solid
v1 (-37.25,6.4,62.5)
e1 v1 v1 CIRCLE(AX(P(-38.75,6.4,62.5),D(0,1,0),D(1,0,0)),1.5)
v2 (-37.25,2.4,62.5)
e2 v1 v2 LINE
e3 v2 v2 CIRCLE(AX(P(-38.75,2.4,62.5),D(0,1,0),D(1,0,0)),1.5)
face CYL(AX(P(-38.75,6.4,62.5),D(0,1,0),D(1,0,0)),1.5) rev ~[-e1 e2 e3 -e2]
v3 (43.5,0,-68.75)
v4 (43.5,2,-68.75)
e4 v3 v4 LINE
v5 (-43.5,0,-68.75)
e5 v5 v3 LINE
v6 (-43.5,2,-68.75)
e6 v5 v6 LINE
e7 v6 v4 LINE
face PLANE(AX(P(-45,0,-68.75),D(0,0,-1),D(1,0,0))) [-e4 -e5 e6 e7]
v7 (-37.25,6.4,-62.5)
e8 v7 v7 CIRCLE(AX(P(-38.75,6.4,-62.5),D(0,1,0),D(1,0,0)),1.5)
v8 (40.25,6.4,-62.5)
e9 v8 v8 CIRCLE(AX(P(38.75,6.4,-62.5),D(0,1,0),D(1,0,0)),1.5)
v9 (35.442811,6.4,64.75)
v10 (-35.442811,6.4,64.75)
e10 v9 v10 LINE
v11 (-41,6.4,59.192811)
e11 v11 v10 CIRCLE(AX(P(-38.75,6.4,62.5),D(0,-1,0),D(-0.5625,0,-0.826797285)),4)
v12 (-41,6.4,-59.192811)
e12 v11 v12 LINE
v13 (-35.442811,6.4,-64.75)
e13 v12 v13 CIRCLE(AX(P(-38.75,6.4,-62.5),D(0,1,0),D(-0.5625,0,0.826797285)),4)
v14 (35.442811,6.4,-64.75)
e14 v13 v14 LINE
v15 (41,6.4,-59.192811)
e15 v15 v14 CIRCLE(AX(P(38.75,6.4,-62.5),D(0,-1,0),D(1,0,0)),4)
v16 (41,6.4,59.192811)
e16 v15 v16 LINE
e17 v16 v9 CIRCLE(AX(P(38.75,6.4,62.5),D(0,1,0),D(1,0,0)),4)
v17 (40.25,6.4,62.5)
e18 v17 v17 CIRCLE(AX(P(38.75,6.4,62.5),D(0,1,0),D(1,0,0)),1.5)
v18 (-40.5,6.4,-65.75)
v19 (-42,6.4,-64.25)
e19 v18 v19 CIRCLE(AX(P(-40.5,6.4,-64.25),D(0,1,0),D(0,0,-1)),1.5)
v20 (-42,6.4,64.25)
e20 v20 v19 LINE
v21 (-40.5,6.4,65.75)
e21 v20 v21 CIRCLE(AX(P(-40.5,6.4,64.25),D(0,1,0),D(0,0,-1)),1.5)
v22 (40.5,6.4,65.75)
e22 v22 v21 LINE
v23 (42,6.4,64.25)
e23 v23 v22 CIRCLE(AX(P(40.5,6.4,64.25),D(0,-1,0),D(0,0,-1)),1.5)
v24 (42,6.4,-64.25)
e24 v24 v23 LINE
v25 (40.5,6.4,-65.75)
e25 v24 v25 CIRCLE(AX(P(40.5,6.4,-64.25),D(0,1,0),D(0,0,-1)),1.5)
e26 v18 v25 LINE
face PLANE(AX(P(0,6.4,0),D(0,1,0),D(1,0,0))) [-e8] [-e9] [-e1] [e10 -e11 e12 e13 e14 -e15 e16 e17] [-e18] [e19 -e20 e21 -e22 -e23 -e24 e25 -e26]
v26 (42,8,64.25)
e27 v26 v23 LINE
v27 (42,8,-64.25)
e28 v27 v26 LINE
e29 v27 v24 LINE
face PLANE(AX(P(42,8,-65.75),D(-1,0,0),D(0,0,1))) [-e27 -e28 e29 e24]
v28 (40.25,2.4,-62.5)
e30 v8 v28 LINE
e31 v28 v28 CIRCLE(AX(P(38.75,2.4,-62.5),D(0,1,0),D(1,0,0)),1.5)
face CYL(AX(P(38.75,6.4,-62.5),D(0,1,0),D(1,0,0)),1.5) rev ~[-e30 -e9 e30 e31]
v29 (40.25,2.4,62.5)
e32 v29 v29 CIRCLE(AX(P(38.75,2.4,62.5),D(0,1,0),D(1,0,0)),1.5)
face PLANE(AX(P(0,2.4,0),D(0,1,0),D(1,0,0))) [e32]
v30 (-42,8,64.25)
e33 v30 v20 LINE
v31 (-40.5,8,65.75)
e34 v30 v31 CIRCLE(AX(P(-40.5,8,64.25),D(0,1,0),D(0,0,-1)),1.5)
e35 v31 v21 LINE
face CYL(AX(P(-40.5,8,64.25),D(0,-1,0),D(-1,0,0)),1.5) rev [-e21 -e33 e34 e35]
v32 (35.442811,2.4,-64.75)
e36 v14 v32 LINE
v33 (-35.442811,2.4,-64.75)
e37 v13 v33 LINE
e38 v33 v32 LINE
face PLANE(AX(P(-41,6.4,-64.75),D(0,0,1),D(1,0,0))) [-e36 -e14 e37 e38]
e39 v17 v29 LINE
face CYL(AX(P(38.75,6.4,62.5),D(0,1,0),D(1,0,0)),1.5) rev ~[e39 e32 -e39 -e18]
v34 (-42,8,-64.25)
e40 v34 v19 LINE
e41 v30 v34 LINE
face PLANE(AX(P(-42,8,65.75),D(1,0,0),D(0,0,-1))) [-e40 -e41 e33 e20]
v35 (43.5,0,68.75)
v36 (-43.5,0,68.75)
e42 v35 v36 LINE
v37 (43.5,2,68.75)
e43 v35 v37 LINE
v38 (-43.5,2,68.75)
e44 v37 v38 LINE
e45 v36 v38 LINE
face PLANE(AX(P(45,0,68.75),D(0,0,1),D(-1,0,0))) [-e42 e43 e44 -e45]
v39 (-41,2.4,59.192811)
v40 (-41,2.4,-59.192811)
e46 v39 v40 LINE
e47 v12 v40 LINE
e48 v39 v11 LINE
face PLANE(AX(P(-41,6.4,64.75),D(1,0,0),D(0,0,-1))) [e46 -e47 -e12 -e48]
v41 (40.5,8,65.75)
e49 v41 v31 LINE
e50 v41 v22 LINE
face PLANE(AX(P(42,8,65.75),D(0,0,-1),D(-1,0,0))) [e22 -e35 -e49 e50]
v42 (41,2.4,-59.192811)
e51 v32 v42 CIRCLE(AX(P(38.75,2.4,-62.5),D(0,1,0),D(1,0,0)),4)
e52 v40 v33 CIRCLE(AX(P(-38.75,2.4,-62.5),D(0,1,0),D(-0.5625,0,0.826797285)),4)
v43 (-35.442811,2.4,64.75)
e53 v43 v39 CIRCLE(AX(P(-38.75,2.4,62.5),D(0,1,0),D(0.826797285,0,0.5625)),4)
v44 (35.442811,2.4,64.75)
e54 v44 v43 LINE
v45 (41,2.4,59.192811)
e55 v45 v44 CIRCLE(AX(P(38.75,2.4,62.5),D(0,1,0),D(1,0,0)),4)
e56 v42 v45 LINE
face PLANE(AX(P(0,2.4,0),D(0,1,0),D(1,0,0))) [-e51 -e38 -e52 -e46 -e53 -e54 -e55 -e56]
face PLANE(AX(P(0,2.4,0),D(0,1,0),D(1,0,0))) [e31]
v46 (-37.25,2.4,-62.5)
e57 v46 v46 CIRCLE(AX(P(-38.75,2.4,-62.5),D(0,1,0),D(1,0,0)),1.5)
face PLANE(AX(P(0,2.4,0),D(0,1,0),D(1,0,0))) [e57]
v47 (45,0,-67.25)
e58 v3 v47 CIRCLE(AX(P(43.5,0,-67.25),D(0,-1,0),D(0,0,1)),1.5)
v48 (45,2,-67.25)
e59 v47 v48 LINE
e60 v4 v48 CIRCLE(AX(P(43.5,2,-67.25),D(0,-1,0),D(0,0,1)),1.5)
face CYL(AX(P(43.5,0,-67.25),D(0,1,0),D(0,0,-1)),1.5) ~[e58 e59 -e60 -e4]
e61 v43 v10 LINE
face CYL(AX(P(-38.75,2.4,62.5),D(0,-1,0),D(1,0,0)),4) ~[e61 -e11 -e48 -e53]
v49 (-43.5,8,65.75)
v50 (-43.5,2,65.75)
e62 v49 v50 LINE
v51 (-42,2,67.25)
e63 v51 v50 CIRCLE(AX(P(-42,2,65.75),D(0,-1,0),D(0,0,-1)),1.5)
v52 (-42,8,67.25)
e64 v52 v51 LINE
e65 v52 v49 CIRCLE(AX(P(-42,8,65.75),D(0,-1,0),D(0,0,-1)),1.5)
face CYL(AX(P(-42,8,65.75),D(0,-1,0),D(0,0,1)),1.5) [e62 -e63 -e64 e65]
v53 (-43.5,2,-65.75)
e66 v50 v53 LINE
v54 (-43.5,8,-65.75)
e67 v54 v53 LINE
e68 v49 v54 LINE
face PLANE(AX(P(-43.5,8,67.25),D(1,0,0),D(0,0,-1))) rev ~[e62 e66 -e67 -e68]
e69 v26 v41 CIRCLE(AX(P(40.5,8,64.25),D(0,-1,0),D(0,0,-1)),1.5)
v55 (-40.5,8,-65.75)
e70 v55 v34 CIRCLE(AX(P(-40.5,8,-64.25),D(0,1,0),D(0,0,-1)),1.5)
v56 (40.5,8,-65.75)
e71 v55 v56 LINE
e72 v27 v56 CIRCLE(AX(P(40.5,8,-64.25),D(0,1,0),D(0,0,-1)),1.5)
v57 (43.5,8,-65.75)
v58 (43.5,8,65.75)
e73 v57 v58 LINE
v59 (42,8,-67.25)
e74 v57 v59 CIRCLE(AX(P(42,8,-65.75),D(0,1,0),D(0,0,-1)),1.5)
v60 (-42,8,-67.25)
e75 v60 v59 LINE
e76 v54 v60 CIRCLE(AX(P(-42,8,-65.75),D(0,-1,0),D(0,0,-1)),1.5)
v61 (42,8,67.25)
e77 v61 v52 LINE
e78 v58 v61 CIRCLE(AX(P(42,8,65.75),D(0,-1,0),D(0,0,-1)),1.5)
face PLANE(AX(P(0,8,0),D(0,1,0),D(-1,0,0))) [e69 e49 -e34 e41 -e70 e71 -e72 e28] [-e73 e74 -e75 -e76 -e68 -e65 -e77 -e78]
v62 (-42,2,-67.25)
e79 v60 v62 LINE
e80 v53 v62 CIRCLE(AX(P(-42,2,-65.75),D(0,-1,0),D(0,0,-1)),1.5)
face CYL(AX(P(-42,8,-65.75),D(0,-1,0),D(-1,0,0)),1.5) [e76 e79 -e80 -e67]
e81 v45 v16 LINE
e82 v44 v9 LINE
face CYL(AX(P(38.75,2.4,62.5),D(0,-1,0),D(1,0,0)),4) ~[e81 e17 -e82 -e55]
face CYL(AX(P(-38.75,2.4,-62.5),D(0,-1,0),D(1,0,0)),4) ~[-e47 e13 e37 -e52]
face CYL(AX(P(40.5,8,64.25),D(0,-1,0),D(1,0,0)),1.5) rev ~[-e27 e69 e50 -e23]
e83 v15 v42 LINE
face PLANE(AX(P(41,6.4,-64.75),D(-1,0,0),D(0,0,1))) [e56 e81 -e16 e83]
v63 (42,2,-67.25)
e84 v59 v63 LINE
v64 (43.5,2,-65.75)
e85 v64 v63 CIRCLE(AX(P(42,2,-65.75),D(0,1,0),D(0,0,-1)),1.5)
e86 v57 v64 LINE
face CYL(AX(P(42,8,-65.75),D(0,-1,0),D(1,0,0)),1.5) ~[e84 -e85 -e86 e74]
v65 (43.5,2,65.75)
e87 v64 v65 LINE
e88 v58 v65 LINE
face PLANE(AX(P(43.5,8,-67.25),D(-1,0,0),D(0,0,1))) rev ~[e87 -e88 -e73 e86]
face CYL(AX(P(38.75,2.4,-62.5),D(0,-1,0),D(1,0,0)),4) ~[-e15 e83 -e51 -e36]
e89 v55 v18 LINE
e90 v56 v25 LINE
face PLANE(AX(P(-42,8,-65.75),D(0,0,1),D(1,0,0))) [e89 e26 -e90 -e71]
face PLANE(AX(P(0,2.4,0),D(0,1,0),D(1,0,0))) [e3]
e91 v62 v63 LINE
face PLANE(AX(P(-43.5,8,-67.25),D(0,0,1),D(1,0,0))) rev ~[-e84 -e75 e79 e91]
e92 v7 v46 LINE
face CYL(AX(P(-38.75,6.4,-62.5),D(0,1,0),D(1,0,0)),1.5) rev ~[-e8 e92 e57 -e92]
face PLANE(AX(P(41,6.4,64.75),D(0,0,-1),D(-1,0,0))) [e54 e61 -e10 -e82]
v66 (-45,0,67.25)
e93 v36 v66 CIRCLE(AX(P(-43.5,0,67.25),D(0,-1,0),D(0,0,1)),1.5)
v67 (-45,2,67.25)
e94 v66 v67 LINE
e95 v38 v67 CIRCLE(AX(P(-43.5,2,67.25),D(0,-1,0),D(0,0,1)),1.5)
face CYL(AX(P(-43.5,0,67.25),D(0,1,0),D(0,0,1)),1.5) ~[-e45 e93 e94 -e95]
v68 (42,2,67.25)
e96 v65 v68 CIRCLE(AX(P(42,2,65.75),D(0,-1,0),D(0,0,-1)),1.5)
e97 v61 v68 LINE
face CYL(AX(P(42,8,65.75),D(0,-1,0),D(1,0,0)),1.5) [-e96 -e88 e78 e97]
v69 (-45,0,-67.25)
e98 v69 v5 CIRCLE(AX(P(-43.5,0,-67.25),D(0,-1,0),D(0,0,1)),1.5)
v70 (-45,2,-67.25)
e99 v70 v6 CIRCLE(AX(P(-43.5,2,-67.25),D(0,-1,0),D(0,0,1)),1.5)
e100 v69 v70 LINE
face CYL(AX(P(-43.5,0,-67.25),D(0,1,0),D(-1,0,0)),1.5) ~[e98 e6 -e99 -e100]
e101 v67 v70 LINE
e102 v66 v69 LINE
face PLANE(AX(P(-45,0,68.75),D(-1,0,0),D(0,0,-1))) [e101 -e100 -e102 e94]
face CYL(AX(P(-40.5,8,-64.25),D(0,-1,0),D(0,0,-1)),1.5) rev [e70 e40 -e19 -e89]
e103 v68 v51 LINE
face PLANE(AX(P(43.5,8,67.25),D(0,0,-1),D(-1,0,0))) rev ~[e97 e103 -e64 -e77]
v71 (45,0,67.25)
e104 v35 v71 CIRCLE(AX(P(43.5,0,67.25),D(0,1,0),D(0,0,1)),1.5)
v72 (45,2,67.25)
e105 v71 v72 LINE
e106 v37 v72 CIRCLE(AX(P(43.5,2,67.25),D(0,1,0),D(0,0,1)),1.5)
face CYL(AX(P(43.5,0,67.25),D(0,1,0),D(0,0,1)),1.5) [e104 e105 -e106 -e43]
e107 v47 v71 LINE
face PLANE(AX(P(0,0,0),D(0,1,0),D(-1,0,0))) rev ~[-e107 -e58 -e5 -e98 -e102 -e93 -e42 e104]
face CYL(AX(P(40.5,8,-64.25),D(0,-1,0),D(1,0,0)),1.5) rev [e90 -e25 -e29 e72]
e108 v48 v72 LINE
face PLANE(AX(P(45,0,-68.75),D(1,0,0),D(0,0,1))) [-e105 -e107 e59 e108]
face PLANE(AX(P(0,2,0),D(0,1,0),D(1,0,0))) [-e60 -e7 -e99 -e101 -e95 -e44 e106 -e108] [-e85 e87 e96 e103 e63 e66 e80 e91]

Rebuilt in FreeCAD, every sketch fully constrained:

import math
import FreeCAD as App
import Part
import Sketcher
from FreeCAD import Vector


def edges_at(feature, points):
    """Names of the edges that pass closest to the given points."""
    edges = feature.Shape.Edges
    near = lambda p: min(range(len(edges)), key=lambda i: edges[i].distToShape(Part.Vertex(*p))[0])
    return sorted({f"Edge{near(p) + 1}" for p in points})

doc = App.newDocument("Part")
params = doc.addObject("Spreadsheet::Sheet", "Params")
for row, (alias, value) in enumerate([
    ("sketch1_width", "90 mm"),
    ("sketch1_height", "137.5 mm"),
    ("pad1_length", "8 mm"),
    ("sketch2_width", "84 mm"),
    ("sketch2_height", "131.5 mm"),
    ("pocket1_length", "1.6 mm"),
    ("sketch3_width", "82 mm"),
    ("sketch3_height", "129.5 mm"),
    ("pocket2_length", "4 mm"),
    ("sketch4_diameter", "8 mm"),
    ("sketch4_width", "2.25 mm"),
    ("pad2_length", "4 mm"),
    ("sketch5_diameter", "3 mm"),
    ("pocket3_length", "4 mm"),
    ("fillet_radius", "1.5 mm"),
    ("sketch6_width", "91 mm"),
    ("sketch6_width2", "87 mm"),
    ("sketch6_height", "138.5 mm"),
    ("sketch6_height2", "134.5 mm"),
    ("pocket4_length", "6 mm"),
    ("fillet2_radius", "1.5 mm"),
], start=1):
    params.set(f"A{row}", alias)
    params.set(f"B{row}", "=" + value)
    params.setAlias(f"B{row}", alias)

body = doc.addObject("PartDesign::Body", "Body")

# Sketch on XZ plane
sketch1 = body.newObject("Sketcher::SketchObject", "Sketch")
sketch1.AttachmentSupport = (doc.getObject("XZ_Plane"), [""])
sketch1.MapMode = "FlatFace"
sketch1.addGeometry([
    Part.LineSegment(Vector(-45, 69, 0), Vector(45, 69, 0)),
    Part.LineSegment(Vector(45, 69, 0), Vector(45, -69, 0)),
    Part.LineSegment(Vector(45, -69, 0), Vector(-45, -69, 0)),
    Part.LineSegment(Vector(-45, -69, 0), Vector(-45, 69, 0)),
], False)
sketch1.addConstraint([
    Sketcher.Constraint("Coincident", 0, 2, 1, 1),
    Sketcher.Constraint("Coincident", 1, 2, 2, 1),
    Sketcher.Constraint("Coincident", 2, 2, 3, 1),
    Sketcher.Constraint("Coincident", 3, 2, 0, 1),
    Sketcher.Constraint("Horizontal", 0),
    Sketcher.Constraint("Vertical", 1),
    Sketcher.Constraint("Horizontal", 2),
    Sketcher.Constraint("Vertical", 3),
    Sketcher.Constraint("Symmetric", 0, 2, 2, 2, -1, 1),
    Sketcher.Constraint("DistanceX", 0, 1, 0, 2, 90.0),
    Sketcher.Constraint("DistanceY", 1, 2, 1, 1, 137.5),
])
sketch1.setExpression("Constraints[9]", "Params.sketch1_width")
sketch1.setExpression("Constraints[10]", "Params.sketch1_height")
pad1 = body.newObject("PartDesign::Pad", "Pad")
pad1.Profile = sketch1
pad1.setExpression("Length", "Params.pad1_length")
pad1.Reversed = True

# Sketch on XZ plane
sketch2 = body.newObject("Sketcher::SketchObject", "Sketch001")
sketch2.AttachmentSupport = (doc.getObject("XZ_Plane"), [""])
sketch2.MapMode = "FlatFace"
sketch2.AttachmentOffset = App.Placement(Vector(0, 0, -8), App.Rotation())
sketch2.addGeometry([
    Part.LineSegment(Vector(-42, 66, 0), Vector(42, 66, 0)),
    Part.LineSegment(Vector(42, 66, 0), Vector(42, -66, 0)),
    Part.LineSegment(Vector(42, -66, 0), Vector(-42, -66, 0)),
    Part.LineSegment(Vector(-42, -66, 0), Vector(-42, 66, 0)),
], False)
sketch2.addConstraint([
    Sketcher.Constraint("Coincident", 0, 2, 1, 1),
    Sketcher.Constraint("Coincident", 1, 2, 2, 1),
    Sketcher.Constraint("Coincident", 2, 2, 3, 1),
    Sketcher.Constraint("Coincident", 3, 2, 0, 1),
    Sketcher.Constraint("Horizontal", 0),
    Sketcher.Constraint("Vertical", 1),
    Sketcher.Constraint("Horizontal", 2),
    Sketcher.Constraint("Vertical", 3),
    Sketcher.Constraint("Symmetric", 0, 2, 2, 2, -1, 1),
    Sketcher.Constraint("DistanceX", 0, 1, 0, 2, 84.0),
    Sketcher.Constraint("DistanceY", 1, 2, 1, 1, 131.5),
])
sketch2.setExpression("Constraints[9]", "Params.sketch2_width")
sketch2.setExpression("Constraints[10]", "Params.sketch2_height")
pocket1 = body.newObject("PartDesign::Pocket", "Pocket")
pocket1.Profile = sketch2
pocket1.setExpression("Length", "Params.pocket1_length")
pocket1.Reversed = True

# Sketch on XZ plane
sketch3 = body.newObject("Sketcher::SketchObject", "Sketch002")
sketch3.AttachmentSupport = (doc.getObject("XZ_Plane"), [""])
sketch3.MapMode = "FlatFace"
sketch3.AttachmentOffset = App.Placement(Vector(0, 0, -6.4), App.Rotation())
sketch3.addGeometry([
    Part.LineSegment(Vector(-41, 65, 0), Vector(41, 65, 0)),
    Part.LineSegment(Vector(41, 65, 0), Vector(41, -65, 0)),
    Part.LineSegment(Vector(41, -65, 0), Vector(-41, -65, 0)),
    Part.LineSegment(Vector(-41, -65, 0), Vector(-41, 65, 0)),
], False)
sketch3.addConstraint([
    Sketcher.Constraint("Coincident", 0, 2, 1, 1),
    Sketcher.Constraint("Coincident", 1, 2, 2, 1),
    Sketcher.Constraint("Coincident", 2, 2, 3, 1),
    Sketcher.Constraint("Coincident", 3, 2, 0, 1),
    Sketcher.Constraint("Horizontal", 0),
    Sketcher.Constraint("Vertical", 1),
    Sketcher.Constraint("Horizontal", 2),
    Sketcher.Constraint("Vertical", 3),
    Sketcher.Constraint("Symmetric", 0, 2, 2, 2, -1, 1),
    Sketcher.Constraint("DistanceX", 0, 1, 0, 2, 82.0),
    Sketcher.Constraint("DistanceY", 1, 2, 1, 1, 129.5),
])
sketch3.setExpression("Constraints[9]", "Params.sketch3_width")
sketch3.setExpression("Constraints[10]", "Params.sketch3_height")
pocket2 = body.newObject("PartDesign::Pocket", "Pocket001")
pocket2.Profile = sketch3
pocket2.setExpression("Length", "Params.pocket2_length")
pocket2.Reversed = True

# Sketch on XZ plane
sketch4 = body.newObject("Sketcher::SketchObject", "Sketch003")
sketch4.AttachmentSupport = (doc.getObject("XZ_Plane"), [""])
sketch4.MapMode = "FlatFace"
sketch4.AttachmentOffset = App.Placement(Vector(0, 0, -2.4), App.Rotation())
sketch4.addGeometry([
    Part.ArcOfCircle(Part.Circle(Vector(-38.8, 62.5, 0), Vector(0, 0, 1), 4), math.radians(-124), math.radians(34)),  # 0
    Part.LineSegment(Vector(-41, 59.2, 0), Vector(-41, 64.8, 0)),  # 1
    Part.LineSegment(Vector(-41, 64.8, 0), Vector(-35.4, 64.8, 0)),  # 2
    Part.Circle(Vector(38.8, -62.5, 0), Vector(0, 0, 1), 4),  # 3
    Part.ArcOfCircle(Part.Circle(Vector(38.8, 62.5, 0), Vector(0, 0, 1), 4), math.radians(146), math.radians(304)),  # 4
    Part.LineSegment(Vector(35.4, 64.8, 0), Vector(41, 64.8, 0)),  # 5
    Part.LineSegment(Vector(41, 64.8, 0), Vector(41, 59.2, 0)),  # 6
    Part.Circle(Vector(-38.8, -62.5, 0), Vector(0, 0, 1), 4),  # 7
], False)
sketch4.addConstraint([
    Sketcher.Constraint("Coincident", 0, 1, 1, 1),
    Sketcher.Constraint("Coincident", 1, 2, 2, 1),
    Sketcher.Constraint("Coincident", 2, 2, 0, 2),
    Sketcher.Constraint("Coincident", 4, 1, 5, 1),
    Sketcher.Constraint("Coincident", 5, 2, 6, 1),
    Sketcher.Constraint("Coincident", 6, 2, 4, 2),
    Sketcher.Constraint("Vertical", 1),
    Sketcher.Constraint("Horizontal", 2),
    Sketcher.Constraint("Horizontal", 5),
    Sketcher.Constraint("Vertical", 6),
    Sketcher.Constraint("Equal", 0, 3),
    Sketcher.Constraint("Equal", 3, 4),
    Sketcher.Constraint("Equal", 4, 7),
    Sketcher.Constraint("Symmetric", 0, 3, 3, 3, -1, 1),
    Sketcher.Constraint("Symmetric", 4, 3, 7, 3, -1, 1),
    Sketcher.Constraint("Symmetric", 0, 3, 4, 3, -2),
    Sketcher.Constraint("Symmetric", 1, 2, 5, 2, -2),
    Sketcher.Constraint("Equal", 5, 1),
    Sketcher.Constraint("Diameter", 3, 8.0),
    Sketcher.Constraint("DistanceY", 3, 3, 0, 3, 125.0),
    Sketcher.Constraint("DistanceX", 0, 3, 3, 3, 77.5),
    Sketcher.Constraint("DistanceX", 0, 1, 0, 3, 2.25),
])
sketch4.setExpression("Constraints[18]", "Params.sketch4_diameter")
sketch4.setExpression("Constraints[21]", "Params.sketch4_width")
pad2 = body.newObject("PartDesign::Pad", "Pad001")
pad2.Profile = sketch4
pad2.setExpression("Length", "Params.pad2_length")
pad2.Reversed = True

# Sketch on XZ plane
sketch5 = body.newObject("Sketcher::SketchObject", "Sketch004")
sketch5.AttachmentSupport = (doc.getObject("XZ_Plane"), [""])
sketch5.MapMode = "FlatFace"
sketch5.AttachmentOffset = App.Placement(Vector(0, 0, -6.4), App.Rotation())
sketch5.addGeometry([
    Part.Circle(Vector(-38.8, 62.5, 0), Vector(0, 0, 1), 1.5),
    Part.Circle(Vector(-38.8, -62.5, 0), Vector(0, 0, 1), 1.5),
    Part.Circle(Vector(38.8, -62.5, 0), Vector(0, 0, 1), 1.5),
    Part.Circle(Vector(38.8, 62.5, 0), Vector(0, 0, 1), 1.5),
], False)
sketch5.addConstraint([
    Sketcher.Constraint("Equal", 0, 1),
    Sketcher.Constraint("Equal", 1, 2),
    Sketcher.Constraint("Equal", 2, 3),
    Sketcher.Constraint("Symmetric", 0, 3, 2, 3, -1, 1),
    Sketcher.Constraint("Symmetric", 1, 3, 3, 3, -1, 1),
    Sketcher.Constraint("Symmetric", 1, 3, 2, 3, -2),
    Sketcher.Constraint("Diameter", 0, 3.0),
    Sketcher.Constraint("DistanceY", 1, 3, 0, 3, 125.0),
    Sketcher.Constraint("DistanceX", 1, 3, 2, 3, 77.5),
])
sketch5.setExpression("Constraints[6]", "Params.sketch5_diameter")
pocket3 = body.newObject("PartDesign::Pocket", "Pocket002")
pocket3.Profile = sketch5
pocket3.setExpression("Length", "Params.pocket3_length")
pocket3.Reversed = True
doc.recompute()

fillet = body.newObject("PartDesign::Fillet", "Fillet")
fillet.Base = (pocket3, edges_at(pocket3, [
    (-42, 7.2, 65.75),
    (-42, 7.2, -65.75),
    (42, 7.2, 65.75),
    (42, 7.2, -65.75),
]))
fillet.setExpression("Radius", "Params.fillet_radius")

# Sketch on XZ plane
sketch6 = body.newObject("Sketcher::SketchObject", "Sketch005")
sketch6.AttachmentSupport = (doc.getObject("XZ_Plane"), [""])
sketch6.MapMode = "FlatFace"
sketch6.AttachmentOffset = App.Placement(Vector(0, 0, -8), App.Rotation())
sketch6.addGeometry([
    Part.LineSegment(Vector(-46, 69, 0), Vector(46, 69, 0)),  # 0
    Part.LineSegment(Vector(46, 69, 0), Vector(46, -69, 0)),  # 1
    Part.LineSegment(Vector(46, -69, 0), Vector(-46, -69, 0)),  # 2
    Part.LineSegment(Vector(-46, -69, 0), Vector(-46, 69, 0)),  # 3
    Part.LineSegment(Vector(44, -67, 0), Vector(44, 67, 0)),  # 4
    Part.LineSegment(Vector(44, 67, 0), Vector(-44, 67, 0)),  # 5
    Part.LineSegment(Vector(-44, 67, 0), Vector(-44, -67, 0)),  # 6
    Part.LineSegment(Vector(-44, -67, 0), Vector(44, -67, 0)),  # 7
], False)
sketch6.addConstraint([
    Sketcher.Constraint("Coincident", 0, 2, 1, 1),
    Sketcher.Constraint("Coincident", 1, 2, 2, 1),
    Sketcher.Constraint("Coincident", 2, 2, 3, 1),
    Sketcher.Constraint("Coincident", 3, 2, 0, 1),
    Sketcher.Constraint("Coincident", 4, 2, 5, 1),
    Sketcher.Constraint("Coincident", 5, 2, 6, 1),
    Sketcher.Constraint("Coincident", 6, 2, 7, 1),
    Sketcher.Constraint("Coincident", 7, 2, 4, 1),
    Sketcher.Constraint("Horizontal", 0),
    Sketcher.Constraint("Vertical", 1),
    Sketcher.Constraint("Horizontal", 2),
    Sketcher.Constraint("Vertical", 3),
    Sketcher.Constraint("Vertical", 4),
    Sketcher.Constraint("Horizontal", 5),
    Sketcher.Constraint("Vertical", 6),
    Sketcher.Constraint("Horizontal", 7),
    Sketcher.Constraint("Symmetric", 0, 2, 2, 2, -1, 1),
    Sketcher.Constraint("Symmetric", 4, 2, 6, 2, -1, 1),
    Sketcher.Constraint("DistanceX", 0, 1, 0, 2, 91.0),
    Sketcher.Constraint("DistanceX", 5, 2, 5, 1, 87.0),
    Sketcher.Constraint("DistanceY", 1, 2, 1, 1, 138.5),
    Sketcher.Constraint("DistanceY", 4, 1, 4, 2, 134.5),
])
sketch6.setExpression("Constraints[18]", "Params.sketch6_width")
sketch6.setExpression("Constraints[19]", "Params.sketch6_width2")
sketch6.setExpression("Constraints[20]", "Params.sketch6_height")
sketch6.setExpression("Constraints[21]", "Params.sketch6_height2")
pocket4 = body.newObject("PartDesign::Pocket", "Pocket003")
pocket4.Profile = sketch6
pocket4.setExpression("Length", "Params.pocket4_length")
pocket4.Reversed = True
doc.recompute()

fillet2 = body.newObject("PartDesign::Fillet", "Fillet001")
fillet2.Base = (pocket4, edges_at(pocket4, [
    (43.5, 5, 67.25),
    (45, 1, 68.75),
    (43.5, 5, -67.25),
    (45, 1, -68.75),
    (-43.5, 5, -67.25),
    (-45, 1, -68.75),
    (-43.5, 5, 67.25),
    (-45, 1, 68.75),
]))
fillet2.setExpression("Radius", "Params.fillet2_radius")

doc.recompute()
